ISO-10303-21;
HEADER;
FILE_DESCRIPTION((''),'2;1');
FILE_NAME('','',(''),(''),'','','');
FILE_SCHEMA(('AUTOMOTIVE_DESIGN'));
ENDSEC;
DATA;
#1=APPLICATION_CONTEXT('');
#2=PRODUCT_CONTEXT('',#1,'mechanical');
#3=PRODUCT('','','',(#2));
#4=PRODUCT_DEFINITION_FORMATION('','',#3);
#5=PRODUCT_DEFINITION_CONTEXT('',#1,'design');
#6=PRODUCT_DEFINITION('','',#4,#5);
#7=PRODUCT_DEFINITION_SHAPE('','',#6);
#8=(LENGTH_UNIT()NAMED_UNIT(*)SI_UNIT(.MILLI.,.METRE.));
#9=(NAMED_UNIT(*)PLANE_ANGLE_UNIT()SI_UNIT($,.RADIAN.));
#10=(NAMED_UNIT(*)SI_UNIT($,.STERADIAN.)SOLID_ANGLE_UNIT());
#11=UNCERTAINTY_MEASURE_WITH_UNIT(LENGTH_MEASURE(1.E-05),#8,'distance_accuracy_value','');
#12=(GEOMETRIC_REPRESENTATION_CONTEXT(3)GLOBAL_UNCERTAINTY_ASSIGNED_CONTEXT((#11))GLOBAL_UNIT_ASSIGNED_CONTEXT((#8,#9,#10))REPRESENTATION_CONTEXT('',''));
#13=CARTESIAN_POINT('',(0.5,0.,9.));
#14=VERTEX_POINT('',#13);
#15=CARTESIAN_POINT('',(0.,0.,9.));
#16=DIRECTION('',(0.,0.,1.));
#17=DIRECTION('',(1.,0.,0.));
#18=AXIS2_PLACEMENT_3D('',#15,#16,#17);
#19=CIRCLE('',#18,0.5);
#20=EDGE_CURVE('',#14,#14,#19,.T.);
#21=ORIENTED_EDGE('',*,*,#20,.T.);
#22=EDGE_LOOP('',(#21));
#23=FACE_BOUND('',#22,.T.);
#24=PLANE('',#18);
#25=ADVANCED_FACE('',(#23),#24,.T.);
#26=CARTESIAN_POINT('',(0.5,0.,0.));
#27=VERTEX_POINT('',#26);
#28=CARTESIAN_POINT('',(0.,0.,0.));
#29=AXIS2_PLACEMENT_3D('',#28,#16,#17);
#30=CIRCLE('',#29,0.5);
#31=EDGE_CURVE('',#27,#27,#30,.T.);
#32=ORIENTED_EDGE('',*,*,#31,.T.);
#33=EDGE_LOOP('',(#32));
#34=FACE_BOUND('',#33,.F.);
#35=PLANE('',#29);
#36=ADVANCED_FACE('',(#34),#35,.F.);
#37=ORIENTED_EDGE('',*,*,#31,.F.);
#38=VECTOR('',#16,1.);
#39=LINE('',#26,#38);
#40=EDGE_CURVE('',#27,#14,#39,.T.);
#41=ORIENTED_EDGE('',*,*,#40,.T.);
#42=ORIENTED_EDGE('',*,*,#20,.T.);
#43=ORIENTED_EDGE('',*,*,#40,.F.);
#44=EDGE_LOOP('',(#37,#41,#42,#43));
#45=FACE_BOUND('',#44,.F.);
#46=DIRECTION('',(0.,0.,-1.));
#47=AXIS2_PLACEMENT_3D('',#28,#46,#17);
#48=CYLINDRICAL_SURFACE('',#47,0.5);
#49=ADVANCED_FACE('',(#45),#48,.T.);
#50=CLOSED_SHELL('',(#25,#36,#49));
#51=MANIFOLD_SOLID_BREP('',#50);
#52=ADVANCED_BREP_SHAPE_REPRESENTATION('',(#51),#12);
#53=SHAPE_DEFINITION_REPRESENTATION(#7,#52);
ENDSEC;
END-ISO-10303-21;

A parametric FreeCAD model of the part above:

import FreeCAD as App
import Part
import Sketcher

V = App.Vector
Q = App.Units.Quantity

doc = App.newDocument("Part")
body = doc.addObject("PartDesign::Body", "Body")

# Sketch on XY plane
sketch1 = body.newObject("Sketcher::SketchObject", "Sketch")
sketch1.AttachmentSupport = (doc.getObject("XY_Plane"), [""])
sketch1.MapMode = "FlatFace"
sketch1.addGeometry(Part.Circle(V(0, 0, 0), V(0, 0, 1), 0.5), False)
sketch1.addConstraint(Sketcher.Constraint("Coincident", 0, 3, -1, 1))
sketch1.addConstraint(Sketcher.Constraint("Diameter", 0, Q("1 mm")))
pad1 = body.newObject("PartDesign::Pad", "Pad")
pad1.Profile = sketch1
pad1.Length = 9

doc.recompute()
